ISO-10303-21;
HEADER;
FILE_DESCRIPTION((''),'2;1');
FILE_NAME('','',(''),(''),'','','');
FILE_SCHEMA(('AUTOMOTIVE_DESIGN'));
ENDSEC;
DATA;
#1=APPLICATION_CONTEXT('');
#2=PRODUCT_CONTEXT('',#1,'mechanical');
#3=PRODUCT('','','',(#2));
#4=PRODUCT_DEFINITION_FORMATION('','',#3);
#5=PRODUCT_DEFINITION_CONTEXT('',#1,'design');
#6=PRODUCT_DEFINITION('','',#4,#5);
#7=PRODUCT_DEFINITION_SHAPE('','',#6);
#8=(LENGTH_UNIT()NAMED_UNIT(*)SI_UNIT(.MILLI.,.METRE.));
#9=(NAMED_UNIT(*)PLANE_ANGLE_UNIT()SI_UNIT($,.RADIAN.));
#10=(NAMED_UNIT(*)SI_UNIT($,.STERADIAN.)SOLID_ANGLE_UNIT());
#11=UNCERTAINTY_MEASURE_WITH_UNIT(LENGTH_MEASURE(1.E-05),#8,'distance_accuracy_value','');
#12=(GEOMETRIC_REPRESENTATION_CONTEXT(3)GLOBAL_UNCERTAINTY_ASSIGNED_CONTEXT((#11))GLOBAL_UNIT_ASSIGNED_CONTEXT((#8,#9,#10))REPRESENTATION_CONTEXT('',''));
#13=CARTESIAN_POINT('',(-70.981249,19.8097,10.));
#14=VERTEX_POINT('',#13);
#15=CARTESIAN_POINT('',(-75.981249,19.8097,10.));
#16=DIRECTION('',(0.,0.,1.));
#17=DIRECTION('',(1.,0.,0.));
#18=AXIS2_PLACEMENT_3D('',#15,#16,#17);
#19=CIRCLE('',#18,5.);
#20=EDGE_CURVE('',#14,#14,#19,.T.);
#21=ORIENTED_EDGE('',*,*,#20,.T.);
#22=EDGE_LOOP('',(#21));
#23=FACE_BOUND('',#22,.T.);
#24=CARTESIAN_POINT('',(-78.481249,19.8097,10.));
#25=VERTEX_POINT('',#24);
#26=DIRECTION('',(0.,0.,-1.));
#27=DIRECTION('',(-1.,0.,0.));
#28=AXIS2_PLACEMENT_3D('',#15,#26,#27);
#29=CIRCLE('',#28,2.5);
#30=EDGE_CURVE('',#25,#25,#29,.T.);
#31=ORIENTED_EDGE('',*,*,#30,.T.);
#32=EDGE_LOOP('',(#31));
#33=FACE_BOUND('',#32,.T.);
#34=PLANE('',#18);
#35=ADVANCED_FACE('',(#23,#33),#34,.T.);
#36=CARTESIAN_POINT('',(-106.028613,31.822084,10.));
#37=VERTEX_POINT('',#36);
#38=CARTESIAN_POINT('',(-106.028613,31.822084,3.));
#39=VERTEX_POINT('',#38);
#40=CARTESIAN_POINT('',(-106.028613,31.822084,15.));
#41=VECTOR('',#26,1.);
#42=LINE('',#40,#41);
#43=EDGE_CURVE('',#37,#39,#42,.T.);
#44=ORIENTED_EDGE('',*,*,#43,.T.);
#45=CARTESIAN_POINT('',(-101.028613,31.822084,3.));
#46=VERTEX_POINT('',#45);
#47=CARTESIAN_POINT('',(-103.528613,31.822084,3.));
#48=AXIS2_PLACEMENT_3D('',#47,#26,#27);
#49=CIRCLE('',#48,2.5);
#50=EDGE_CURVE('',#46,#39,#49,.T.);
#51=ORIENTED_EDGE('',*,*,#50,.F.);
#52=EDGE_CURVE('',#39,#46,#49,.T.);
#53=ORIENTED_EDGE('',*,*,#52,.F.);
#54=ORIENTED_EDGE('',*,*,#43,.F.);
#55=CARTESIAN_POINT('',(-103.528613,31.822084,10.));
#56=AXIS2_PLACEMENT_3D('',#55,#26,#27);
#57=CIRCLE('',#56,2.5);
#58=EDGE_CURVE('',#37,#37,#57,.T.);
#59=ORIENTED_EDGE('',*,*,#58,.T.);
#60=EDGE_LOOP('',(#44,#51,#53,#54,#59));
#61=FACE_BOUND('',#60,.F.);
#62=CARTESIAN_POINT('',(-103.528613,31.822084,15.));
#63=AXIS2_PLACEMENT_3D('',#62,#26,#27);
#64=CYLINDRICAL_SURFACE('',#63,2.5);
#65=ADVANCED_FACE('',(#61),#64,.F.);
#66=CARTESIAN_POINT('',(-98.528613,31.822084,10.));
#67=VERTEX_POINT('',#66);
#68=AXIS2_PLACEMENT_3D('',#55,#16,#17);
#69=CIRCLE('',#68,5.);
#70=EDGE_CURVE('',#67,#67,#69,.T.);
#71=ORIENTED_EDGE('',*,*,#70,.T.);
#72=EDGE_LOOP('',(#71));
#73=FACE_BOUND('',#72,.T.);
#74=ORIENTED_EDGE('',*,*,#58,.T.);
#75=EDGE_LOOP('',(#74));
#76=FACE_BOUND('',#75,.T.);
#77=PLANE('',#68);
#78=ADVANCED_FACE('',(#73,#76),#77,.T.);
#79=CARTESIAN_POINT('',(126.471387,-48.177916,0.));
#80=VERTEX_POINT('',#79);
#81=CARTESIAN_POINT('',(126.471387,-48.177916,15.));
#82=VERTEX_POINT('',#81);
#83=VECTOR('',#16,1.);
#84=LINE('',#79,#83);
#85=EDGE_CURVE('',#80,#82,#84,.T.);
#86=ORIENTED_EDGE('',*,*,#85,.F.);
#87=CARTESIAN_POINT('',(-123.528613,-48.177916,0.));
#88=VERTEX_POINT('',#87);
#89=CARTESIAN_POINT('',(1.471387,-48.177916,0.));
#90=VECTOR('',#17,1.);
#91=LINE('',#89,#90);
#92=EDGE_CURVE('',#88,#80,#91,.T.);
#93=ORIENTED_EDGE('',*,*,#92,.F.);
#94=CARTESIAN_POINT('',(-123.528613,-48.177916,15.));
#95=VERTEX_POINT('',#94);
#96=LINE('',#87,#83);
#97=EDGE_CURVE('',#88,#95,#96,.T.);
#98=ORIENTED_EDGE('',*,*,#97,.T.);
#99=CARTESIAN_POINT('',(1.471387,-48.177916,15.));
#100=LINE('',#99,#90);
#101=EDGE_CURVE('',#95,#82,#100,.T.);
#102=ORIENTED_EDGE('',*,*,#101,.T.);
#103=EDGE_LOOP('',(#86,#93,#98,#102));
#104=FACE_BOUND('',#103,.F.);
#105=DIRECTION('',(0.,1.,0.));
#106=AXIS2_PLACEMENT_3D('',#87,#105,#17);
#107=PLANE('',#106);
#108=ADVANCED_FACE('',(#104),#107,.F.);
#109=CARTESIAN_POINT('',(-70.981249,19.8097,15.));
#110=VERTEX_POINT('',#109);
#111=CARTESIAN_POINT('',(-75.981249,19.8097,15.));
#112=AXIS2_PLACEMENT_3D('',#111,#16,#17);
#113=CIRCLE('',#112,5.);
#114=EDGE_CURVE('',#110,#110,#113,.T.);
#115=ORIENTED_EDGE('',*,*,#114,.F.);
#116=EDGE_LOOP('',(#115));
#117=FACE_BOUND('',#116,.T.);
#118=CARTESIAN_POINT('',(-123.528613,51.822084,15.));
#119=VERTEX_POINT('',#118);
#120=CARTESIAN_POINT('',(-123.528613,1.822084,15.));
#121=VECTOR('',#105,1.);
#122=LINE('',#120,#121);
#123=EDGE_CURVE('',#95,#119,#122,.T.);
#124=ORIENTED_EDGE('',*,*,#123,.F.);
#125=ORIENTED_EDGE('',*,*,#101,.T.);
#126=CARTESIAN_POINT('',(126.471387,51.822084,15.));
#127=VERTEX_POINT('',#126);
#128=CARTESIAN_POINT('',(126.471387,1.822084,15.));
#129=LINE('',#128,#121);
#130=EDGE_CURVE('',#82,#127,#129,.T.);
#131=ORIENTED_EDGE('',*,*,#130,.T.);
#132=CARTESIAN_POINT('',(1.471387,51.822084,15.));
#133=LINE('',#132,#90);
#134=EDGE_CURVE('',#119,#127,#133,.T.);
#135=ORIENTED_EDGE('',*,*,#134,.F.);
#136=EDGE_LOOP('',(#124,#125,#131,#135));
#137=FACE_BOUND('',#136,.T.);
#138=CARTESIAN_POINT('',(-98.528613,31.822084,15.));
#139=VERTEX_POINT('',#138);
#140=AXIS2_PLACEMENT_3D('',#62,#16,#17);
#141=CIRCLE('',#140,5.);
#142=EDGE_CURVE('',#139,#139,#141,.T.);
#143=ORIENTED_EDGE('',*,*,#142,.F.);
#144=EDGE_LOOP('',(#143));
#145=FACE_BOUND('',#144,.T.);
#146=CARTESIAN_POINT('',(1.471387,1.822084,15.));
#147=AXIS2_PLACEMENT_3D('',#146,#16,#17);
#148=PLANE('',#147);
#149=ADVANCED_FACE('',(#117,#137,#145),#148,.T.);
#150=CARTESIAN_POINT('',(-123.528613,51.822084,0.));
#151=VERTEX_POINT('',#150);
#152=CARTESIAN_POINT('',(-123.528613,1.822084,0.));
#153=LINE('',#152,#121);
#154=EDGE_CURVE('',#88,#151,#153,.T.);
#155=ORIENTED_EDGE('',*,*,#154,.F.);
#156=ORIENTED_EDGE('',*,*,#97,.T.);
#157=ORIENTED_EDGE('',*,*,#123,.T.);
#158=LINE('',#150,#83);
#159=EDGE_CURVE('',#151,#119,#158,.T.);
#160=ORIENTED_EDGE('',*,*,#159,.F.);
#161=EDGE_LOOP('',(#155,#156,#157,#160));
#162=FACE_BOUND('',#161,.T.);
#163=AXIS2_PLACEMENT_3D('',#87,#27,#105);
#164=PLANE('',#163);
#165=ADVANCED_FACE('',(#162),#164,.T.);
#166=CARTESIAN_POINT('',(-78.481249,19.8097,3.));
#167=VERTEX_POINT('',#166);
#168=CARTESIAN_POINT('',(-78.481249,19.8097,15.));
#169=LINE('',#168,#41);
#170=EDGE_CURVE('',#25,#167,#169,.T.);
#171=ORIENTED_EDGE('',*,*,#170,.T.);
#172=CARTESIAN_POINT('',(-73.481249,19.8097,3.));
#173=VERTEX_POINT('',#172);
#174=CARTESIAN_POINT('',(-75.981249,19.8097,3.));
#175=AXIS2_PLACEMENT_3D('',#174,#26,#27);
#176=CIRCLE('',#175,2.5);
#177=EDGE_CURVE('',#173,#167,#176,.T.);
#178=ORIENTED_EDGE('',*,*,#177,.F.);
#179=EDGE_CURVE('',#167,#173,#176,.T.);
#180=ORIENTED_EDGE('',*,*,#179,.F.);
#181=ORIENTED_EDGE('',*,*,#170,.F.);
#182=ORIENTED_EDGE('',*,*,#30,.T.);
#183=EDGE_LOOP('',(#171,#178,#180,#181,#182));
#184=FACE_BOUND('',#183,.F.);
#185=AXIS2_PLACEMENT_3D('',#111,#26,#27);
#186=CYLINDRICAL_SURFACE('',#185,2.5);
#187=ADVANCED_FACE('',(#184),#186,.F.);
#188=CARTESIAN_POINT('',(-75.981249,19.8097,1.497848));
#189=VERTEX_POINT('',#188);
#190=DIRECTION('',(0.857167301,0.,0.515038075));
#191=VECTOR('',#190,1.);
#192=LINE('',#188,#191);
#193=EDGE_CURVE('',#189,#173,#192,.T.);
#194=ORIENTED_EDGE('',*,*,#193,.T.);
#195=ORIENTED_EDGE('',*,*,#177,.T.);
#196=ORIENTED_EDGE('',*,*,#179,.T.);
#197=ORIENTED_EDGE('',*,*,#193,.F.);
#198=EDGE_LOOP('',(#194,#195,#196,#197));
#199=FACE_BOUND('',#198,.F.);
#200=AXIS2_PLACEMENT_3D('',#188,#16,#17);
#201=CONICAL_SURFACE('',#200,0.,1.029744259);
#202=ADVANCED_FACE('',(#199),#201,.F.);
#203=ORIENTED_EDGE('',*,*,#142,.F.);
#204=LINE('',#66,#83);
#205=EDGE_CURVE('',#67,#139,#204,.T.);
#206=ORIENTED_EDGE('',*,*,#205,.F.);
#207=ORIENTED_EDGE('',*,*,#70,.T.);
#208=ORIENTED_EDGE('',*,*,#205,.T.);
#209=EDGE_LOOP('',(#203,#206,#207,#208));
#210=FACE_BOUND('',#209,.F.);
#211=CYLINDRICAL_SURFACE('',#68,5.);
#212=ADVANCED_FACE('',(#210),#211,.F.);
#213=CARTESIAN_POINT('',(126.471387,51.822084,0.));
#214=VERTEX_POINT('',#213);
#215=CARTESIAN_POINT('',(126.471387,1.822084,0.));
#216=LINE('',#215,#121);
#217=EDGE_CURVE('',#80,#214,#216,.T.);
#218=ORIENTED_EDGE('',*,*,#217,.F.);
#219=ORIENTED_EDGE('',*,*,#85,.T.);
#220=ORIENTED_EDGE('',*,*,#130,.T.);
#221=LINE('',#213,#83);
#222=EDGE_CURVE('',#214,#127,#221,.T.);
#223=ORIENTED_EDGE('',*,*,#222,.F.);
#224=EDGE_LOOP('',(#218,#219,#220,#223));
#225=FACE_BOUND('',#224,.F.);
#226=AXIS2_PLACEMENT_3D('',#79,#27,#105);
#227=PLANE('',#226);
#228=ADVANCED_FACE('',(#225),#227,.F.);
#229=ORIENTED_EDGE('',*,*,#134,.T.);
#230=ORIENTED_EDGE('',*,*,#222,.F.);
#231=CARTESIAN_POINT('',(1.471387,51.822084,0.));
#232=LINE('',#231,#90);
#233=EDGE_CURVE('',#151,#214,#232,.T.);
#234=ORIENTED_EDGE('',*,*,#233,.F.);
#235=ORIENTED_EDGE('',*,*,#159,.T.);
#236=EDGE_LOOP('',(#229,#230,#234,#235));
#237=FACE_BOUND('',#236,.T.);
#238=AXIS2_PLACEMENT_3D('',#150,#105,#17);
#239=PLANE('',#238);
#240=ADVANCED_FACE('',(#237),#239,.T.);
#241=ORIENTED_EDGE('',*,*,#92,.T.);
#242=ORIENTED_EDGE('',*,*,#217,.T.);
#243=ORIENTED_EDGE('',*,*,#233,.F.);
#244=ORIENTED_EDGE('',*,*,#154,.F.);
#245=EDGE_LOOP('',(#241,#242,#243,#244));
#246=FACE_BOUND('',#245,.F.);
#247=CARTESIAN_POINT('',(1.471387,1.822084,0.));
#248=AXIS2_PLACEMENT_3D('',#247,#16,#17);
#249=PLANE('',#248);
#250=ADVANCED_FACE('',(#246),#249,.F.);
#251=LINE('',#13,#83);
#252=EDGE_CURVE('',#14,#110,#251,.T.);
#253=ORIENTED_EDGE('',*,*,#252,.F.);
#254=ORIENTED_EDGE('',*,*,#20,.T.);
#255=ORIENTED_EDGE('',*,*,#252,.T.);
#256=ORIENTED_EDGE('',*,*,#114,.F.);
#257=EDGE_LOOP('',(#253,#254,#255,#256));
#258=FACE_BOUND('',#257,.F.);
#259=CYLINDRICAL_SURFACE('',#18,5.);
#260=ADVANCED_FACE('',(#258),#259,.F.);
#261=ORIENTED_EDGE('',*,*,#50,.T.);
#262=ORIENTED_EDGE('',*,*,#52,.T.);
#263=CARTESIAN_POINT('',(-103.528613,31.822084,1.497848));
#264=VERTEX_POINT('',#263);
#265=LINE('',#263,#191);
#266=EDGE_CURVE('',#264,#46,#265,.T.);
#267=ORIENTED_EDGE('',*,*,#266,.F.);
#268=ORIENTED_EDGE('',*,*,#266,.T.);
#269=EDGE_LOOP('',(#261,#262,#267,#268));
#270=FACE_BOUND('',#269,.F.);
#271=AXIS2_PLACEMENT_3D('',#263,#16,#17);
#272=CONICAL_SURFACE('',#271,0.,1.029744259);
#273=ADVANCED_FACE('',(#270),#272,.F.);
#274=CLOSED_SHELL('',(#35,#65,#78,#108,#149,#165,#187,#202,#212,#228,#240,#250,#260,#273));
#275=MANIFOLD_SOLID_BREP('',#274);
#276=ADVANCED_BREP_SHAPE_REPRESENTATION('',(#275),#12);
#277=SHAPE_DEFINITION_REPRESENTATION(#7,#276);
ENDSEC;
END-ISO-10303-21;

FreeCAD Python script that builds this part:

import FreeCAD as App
import Part
import Sketcher
from FreeCAD import Vector
Q = App.Units.Quantity

doc = App.newDocument("Part")
params = doc.addObject("Spreadsheet::Sheet", "Params")
for row, (alias, value) in enumerate([
    ("sketch1_width", "250 mm"),
    ("sketch1_height", "100 mm"),
    ("pad1_length", "15 mm"),
    ("sketch2_diameter", "5 mm"),
    ("hole_diameter", "5 mm"),
    ("hole_depth", "12 mm"),
    ("hole_cbore_diameter", "10 mm"),
    ("hole_cbore_depth", "5 mm"),
], start=1):
    params.set(f"A{row}", alias)
    params.set(f"B{row}", "=" + value)
    params.setAlias(f"B{row}", alias)

body = doc.addObject("PartDesign::Body", "Body")

sketch1 = body.newObject("Sketcher::SketchObject", "Sketch")
sketch1.AttachmentSupport = (doc.getObject("XY_Plane"), [""])
sketch1.MapMode = "FlatFace"
sketch1.addGeometry([
    Part.LineSegment(Vector(-124, 52, 0), Vector(-124, -48, 0)),
    Part.LineSegment(Vector(-124, -48, 0), Vector(126, -48, 0)),
    Part.LineSegment(Vector(126, -48, 0), Vector(126, 52, 0)),
    Part.LineSegment(Vector(126, 52, 0), Vector(-124, 52, 0)),
], False)
sketch1.addConstraint([
    Sketcher.Constraint("Coincident", 0, 2, 1, 1),
    Sketcher.Constraint("Coincident", 1, 2, 2, 1),
    Sketcher.Constraint("Coincident", 2, 2, 3, 1),
    Sketcher.Constraint("Coincident", 3, 2, 0, 1),
    Sketcher.Constraint("Vertical", 0),
    Sketcher.Constraint("Horizontal", 1),
    Sketcher.Constraint("Vertical", 2),
    Sketcher.Constraint("Horizontal", 3),
    Sketcher.Constraint("DistanceX", 1, 1, 1, 2, Q("250 mm")),
    Sketcher.Constraint("DistanceY", 0, 2, 0, 1, Q("100 mm")),
    Sketcher.Constraint("DistanceX", 0, 2, -1, 1, Q("123.528613 mm")),
    Sketcher.Constraint("DistanceY", 0, 2, -1, 1, Q("48.177916 mm")),
])
sketch1.setExpression("Constraints[8]", "Params.sketch1_width")
sketch1.setExpression("Constraints[9]", "Params.sketch1_height")
pad1 = body.newObject("PartDesign::Pad", "Pad")
pad1.Profile = sketch1
pad1.setExpression("Length", "Params.pad1_length")

sketch2 = body.newObject("Sketcher::SketchObject", "Sketch001")
sketch2.AttachmentSupport = (doc.getObject("XY_Plane"), [""])
sketch2.MapMode = "FlatFace"
sketch2.AttachmentOffset = App.Placement(Vector(0, 0, 15), App.Rotation())
sketch2.addGeometry([
    Part.Circle(Vector(-103.5, 31.8, 0), Vector(0, 0, 1), 2.5),
    Part.Circle(Vector(-76, 19.8, 0), Vector(0, 0, 1), 2.5),
], False)
sketch2.addConstraint([
    Sketcher.Constraint("Equal", 0, 1),
    Sketcher.Constraint("Diameter", 0, Q("5 mm")),
    Sketcher.Constraint("DistanceY", -1, 1, 1, 3, Q("19.8097 mm")),
    Sketcher.Constraint("DistanceX", 1, 3, -1, 1, Q("75.981249 mm")),
    Sketcher.Constraint("DistanceX", 0, 3, -1, 1, Q("103.528613 mm")),
    Sketcher.Constraint("DistanceY", -1, 1, 0, 3, Q("31.822084 mm")),
])
sketch2.setExpression("Constraints[1]", "Params.sketch2_diameter")
doc.recompute()
hole = body.newObject("PartDesign::Hole", "Hole")
hole.Profile = sketch2
hole.ThreadType = "None"
hole.setExpression("Diameter", "Params.hole_diameter")
hole.DepthType = "Dimension"
hole.setExpression("Depth", "Params.hole_depth")
hole.DrillPoint = "Angled"
hole.DrillPointAngle = 118
hole.HoleCutType = "Counterbore"
hole.setExpression("HoleCutDiameter", "Params.hole_cbore_diameter")
hole.setExpression("HoleCutDepth", "Params.hole_cbore_depth")

doc.recompute()
